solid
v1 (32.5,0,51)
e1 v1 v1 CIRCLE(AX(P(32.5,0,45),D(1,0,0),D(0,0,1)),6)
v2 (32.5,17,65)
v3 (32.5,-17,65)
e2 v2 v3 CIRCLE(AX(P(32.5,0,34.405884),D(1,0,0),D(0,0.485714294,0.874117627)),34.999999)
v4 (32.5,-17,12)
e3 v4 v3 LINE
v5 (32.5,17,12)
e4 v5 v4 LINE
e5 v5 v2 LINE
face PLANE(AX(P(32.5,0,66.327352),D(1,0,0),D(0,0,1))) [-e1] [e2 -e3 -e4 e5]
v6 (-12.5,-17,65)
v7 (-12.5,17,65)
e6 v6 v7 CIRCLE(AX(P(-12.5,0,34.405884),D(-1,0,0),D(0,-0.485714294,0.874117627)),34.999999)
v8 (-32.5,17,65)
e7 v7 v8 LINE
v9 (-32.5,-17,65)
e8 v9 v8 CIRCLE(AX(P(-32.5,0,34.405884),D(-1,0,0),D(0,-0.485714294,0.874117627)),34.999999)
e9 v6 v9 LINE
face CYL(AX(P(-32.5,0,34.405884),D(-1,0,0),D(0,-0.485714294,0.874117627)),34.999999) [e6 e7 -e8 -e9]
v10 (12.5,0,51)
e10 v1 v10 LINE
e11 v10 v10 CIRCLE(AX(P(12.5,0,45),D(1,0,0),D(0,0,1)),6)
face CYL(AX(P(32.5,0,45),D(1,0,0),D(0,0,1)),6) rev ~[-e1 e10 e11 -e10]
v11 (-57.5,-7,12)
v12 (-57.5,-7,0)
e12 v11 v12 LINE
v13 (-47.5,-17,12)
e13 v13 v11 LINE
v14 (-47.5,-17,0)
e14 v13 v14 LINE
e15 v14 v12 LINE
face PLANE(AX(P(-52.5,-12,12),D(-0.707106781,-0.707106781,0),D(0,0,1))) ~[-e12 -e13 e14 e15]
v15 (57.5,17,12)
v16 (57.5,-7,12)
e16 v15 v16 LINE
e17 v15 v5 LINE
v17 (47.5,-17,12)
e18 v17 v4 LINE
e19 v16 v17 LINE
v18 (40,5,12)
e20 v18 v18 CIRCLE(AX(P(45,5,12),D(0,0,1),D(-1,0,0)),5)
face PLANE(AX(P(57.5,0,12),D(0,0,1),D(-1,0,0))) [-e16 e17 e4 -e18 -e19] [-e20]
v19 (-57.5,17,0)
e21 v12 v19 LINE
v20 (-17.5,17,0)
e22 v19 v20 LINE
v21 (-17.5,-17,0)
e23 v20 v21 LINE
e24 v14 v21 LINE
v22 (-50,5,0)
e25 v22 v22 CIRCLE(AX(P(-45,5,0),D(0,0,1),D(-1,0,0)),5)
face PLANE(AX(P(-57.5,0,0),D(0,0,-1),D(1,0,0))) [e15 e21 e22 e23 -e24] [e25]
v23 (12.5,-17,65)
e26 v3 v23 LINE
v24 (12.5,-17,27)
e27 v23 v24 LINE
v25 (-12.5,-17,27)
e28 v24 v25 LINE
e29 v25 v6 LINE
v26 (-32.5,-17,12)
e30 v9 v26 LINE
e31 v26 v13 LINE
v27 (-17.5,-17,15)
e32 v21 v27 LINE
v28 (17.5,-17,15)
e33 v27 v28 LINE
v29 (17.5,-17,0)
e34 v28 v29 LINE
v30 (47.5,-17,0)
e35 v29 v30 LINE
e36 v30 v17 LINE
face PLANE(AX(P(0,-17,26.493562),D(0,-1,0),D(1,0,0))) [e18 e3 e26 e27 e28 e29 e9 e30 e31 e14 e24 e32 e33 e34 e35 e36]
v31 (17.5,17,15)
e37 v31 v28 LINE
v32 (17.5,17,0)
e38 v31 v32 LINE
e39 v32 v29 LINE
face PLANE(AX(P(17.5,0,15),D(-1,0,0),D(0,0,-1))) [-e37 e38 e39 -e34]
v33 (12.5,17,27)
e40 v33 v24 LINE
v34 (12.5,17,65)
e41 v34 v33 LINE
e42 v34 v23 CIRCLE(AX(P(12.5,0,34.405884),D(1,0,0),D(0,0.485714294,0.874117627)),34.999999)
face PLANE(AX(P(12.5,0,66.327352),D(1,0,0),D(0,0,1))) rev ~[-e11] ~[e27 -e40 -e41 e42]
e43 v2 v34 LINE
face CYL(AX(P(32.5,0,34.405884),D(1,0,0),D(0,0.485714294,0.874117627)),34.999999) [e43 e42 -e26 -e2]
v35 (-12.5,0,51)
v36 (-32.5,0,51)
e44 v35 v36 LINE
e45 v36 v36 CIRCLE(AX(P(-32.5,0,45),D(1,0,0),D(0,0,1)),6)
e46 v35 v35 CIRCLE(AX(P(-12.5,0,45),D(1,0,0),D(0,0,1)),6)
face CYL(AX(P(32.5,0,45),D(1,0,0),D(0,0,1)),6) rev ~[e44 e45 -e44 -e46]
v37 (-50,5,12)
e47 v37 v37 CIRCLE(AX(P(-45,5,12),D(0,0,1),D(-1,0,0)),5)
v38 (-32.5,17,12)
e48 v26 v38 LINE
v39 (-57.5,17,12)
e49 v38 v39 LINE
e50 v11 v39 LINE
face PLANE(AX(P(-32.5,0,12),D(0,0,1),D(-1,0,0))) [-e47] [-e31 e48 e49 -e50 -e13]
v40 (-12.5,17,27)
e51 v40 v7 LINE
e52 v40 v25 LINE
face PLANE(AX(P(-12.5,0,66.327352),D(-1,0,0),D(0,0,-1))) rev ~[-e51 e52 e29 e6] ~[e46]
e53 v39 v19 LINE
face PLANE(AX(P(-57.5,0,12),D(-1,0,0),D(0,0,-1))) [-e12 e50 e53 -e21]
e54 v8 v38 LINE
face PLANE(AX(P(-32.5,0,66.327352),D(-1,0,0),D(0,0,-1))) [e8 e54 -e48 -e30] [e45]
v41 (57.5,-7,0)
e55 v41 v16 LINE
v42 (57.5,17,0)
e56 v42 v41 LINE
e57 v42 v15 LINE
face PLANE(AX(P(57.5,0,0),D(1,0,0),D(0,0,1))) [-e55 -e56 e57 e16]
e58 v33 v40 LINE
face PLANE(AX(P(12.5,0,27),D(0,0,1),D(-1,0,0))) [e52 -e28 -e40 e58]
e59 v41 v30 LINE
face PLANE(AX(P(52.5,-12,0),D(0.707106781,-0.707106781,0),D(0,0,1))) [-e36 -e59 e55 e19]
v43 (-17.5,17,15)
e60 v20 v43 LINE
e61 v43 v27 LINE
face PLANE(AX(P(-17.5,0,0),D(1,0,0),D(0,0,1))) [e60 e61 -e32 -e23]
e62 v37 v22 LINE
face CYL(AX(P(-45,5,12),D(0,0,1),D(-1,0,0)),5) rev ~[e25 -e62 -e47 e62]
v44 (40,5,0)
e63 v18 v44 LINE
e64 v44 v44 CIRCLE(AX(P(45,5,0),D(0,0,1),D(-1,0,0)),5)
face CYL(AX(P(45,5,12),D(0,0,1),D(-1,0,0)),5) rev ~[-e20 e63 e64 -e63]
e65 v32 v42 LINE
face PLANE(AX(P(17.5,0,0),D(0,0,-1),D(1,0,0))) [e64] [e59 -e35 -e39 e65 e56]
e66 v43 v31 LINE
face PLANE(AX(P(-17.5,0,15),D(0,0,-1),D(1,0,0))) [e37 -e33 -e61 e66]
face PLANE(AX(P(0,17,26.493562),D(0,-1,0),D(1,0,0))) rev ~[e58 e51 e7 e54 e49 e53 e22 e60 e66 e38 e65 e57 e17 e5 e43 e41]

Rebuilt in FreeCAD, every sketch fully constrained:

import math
import FreeCAD as App
import Part
import Sketcher
Q = App.Units.Quantity


def edges_at(feature, points):
    """Names of the edges that pass closest to the given points."""
    edges = feature.Shape.Edges
    near = lambda p: min(range(len(edges)), key=lambda i: edges[i].distToShape(Part.Vertex(*p))[0])
    return sorted({f"Edge{near(p) + 1}" for p in points})

doc = App.newDocument("Part")
params = doc.addObject("Spreadsheet::Sheet", "Params")
for row, (alias, value) in enumerate([
    ("sketch1_width", "40 mm"),
    ("sketch1_width2", "35 mm"),
    ("sketch1_width3", "25 mm"),
    ("sketch1_height", "15 mm"),
    ("sketch1_height2", "12 mm"),
    ("pad1_length", "34 mm"),
    ("chamfer_size", "10 mm"),
    ("chamfer2_size", "10 mm"),
    ("sketch2_diameter", "10 mm"),
    ("sketch3_radius", "34.999999 mm"),
    ("sketch3_width", "34 mm"),
    ("pad2_length", "20 mm"),
    ("sketch4_radius", "34.999999 mm"),
    ("sketch4_width", "34 mm"),
    ("pad3_length", "20 mm"),
    ("sketch5_diameter", "12 mm"),
], start=1):
    params.set(f"A{row}", alias)
    params.set(f"B{row}", "=" + value)
    params.setAlias(f"B{row}", alias)

body = doc.addObject("PartDesign::Body", "Body")

# Sketch on XZ plane
sketch1 = body.newObject("Sketcher::SketchObject", "Sketch")
sketch1.AttachmentSupport = (doc.getObject("XZ_Plane"), [""])
sketch1.MapMode = "FlatFace"
sketch1.addGeometry([
    Part.LineSegment(App.Vector(-57.5, 0, 0), App.Vector(-17.5, 0, 0)),  # 0
    Part.LineSegment(App.Vector(-17.5, 0, 0), App.Vector(-17.5, 15, 0)),  # 1
    Part.LineSegment(App.Vector(-17.5, 15, 0), App.Vector(17.5, 15, 0)),  # 2
    Part.LineSegment(App.Vector(17.5, 15, 0), App.Vector(17.5, 0, 0)),  # 3
    Part.LineSegment(App.Vector(17.5, 0, 0), App.Vector(57.5, 0, 0)),  # 4
    Part.LineSegment(App.Vector(57.5, 0, 0), App.Vector(57.5, 12, 0)),  # 5
    Part.LineSegment(App.Vector(57.5, 12, 0), App.Vector(32.5, 12, 0)),  # 6
    Part.LineSegment(App.Vector(32.5, 12, 0), App.Vector(32.5, 65, 0)),  # 7
    Part.LineSegment(App.Vector(32.5, 65, 0), App.Vector(12.5, 65, 0)),  # 8
    Part.LineSegment(App.Vector(12.5, 65, 0), App.Vector(12.5, 27, 0)),  # 9
    Part.LineSegment(App.Vector(12.5, 27, 0), App.Vector(-12.5, 27, 0)),  # 10
    Part.LineSegment(App.Vector(-12.5, 27, 0), App.Vector(-12.5, 65, 0)),  # 11
    Part.LineSegment(App.Vector(-12.5, 65, 0), App.Vector(-32.5, 65, 0)),  # 12
    Part.LineSegment(App.Vector(-32.5, 65, 0), App.Vector(-32.5, 12, 0)),  # 13
    Part.LineSegment(App.Vector(-32.5, 12, 0), App.Vector(-57.5, 12, 0)),  # 14
    Part.LineSegment(App.Vector(-57.5, 12, 0), App.Vector(-57.5, 0, 0)),  # 15
], False)
sketch1.addConstraint([
    Sketcher.Constraint("Coincident", 0, 2, 1, 1),
    Sketcher.Constraint("Coincident", 1, 2, 2, 1),
    Sketcher.Constraint("Coincident", 2, 2, 3, 1),
    Sketcher.Constraint("Coincident", 3, 2, 4, 1),
    Sketcher.Constraint("Coincident", 4, 2, 5, 1),
    Sketcher.Constraint("Coincident", 5, 2, 6, 1),
    Sketcher.Constraint("Coincident", 6, 2, 7, 1),
    Sketcher.Constraint("Coincident", 7, 2, 8, 1),
    Sketcher.Constraint("Coincident", 8, 2, 9, 1),
    Sketcher.Constraint("Coincident", 9, 2, 10, 1),
    Sketcher.Constraint("Coincident", 10, 2, 11, 1),
    Sketcher.Constraint("Coincident", 11, 2, 12, 1),
    Sketcher.Constraint("Coincident", 12, 2, 13, 1),
    Sketcher.Constraint("Coincident", 13, 2, 14, 1),
    Sketcher.Constraint("Coincident", 14, 2, 15, 1),
    Sketcher.Constraint("Coincident", 15, 2, 0, 1),
    Sketcher.Constraint("Horizontal", 0),
    Sketcher.Constraint("Vertical", 1),
    Sketcher.Constraint("Horizontal", 2),
    Sketcher.Constraint("Vertical", 3),
    Sketcher.Constraint("Horizontal", 4),
    Sketcher.Constraint("Vertical", 5),
    Sketcher.Constraint("Horizontal", 6),
    Sketcher.Constraint("Vertical", 7),
    Sketcher.Constraint("Horizontal", 8),
    Sketcher.Constraint("Vertical", 9),
    Sketcher.Constraint("Horizontal", 10),
    Sketcher.Constraint("Vertical", 11),
    Sketcher.Constraint("Horizontal", 12),
    Sketcher.Constraint("Vertical", 13),
    Sketcher.Constraint("Horizontal", 14),
    Sketcher.Constraint("Vertical", 15),
    Sketcher.Constraint("Symmetric", 0, 2, 3, 2, -1, 1),
    Sketcher.Constraint("Symmetric", 8, 2, 11, 2, -2),
    Sketcher.Constraint("Symmetric", 6, 2, 13, 2, -2),
    Sketcher.Constraint("Symmetric", 4, 2, 15, 2, -2),
    Sketcher.Constraint("Equal", 6, 10),
    Sketcher.Constraint("DistanceX", 0, 1, 0, 2, Q("40 mm")),
    Sketcher.Constraint("DistanceX", 2, 1, 2, 2, Q("35 mm")),
    Sketcher.Constraint("DistanceX", 6, 2, 6, 1, Q("25 mm")),
    Sketcher.Constraint("DistanceY", 1, 1, 1, 2, Q("15 mm")),
    Sketcher.Constraint("DistanceY", 5, 1, 5, 2, Q("12 mm")),
    Sketcher.Constraint("DistanceY", 7, 1, 7, 2, Q("53 mm")),
    Sketcher.Constraint("DistanceY", 9, 2, 9, 1, Q("38 mm")),
])
sketch1.setExpression("Constraints[37]", "Params.sketch1_width")
sketch1.setExpression("Constraints[38]", "Params.sketch1_width2")
sketch1.setExpression("Constraints[39]", "Params.sketch1_width3")
sketch1.setExpression("Constraints[40]", "Params.sketch1_height")
sketch1.setExpression("Constraints[41]", "Params.sketch1_height2")
pad1 = body.newObject("PartDesign::Pad", "Pad")
pad1.Profile = sketch1
pad1.setExpression("Length", "Params.pad1_length")
pad1.Midplane = True
doc.recompute()

chamfer = body.newObject("PartDesign::Chamfer", "Chamfer")
chamfer.Base = (pad1, edges_at(pad1, [(57.5, -17, 6)]))
chamfer.setExpression("Size", "Params.chamfer_size")
doc.recompute()

chamfer2 = body.newObject("PartDesign::Chamfer", "Chamfer001")
chamfer2.Base = (chamfer, edges_at(chamfer, [(-57.5, -17, 6)]))
chamfer2.setExpression("Size", "Params.chamfer2_size")

# Sketch on XY plane
sketch2 = body.newObject("Sketcher::SketchObject", "Sketch001")
sketch2.AttachmentSupport = (doc.getObject("XY_Plane"), [""])
sketch2.MapMode = "FlatFace"
sketch2.AttachmentOffset = App.Placement(App.Vector(0, 0, 12), App.Rotation())
sketch2.addGeometry([
    Part.Circle(App.Vector(-45, 5, 0), App.Vector(0, 0, 1), 5),
    Part.Circle(App.Vector(45, 5, 0), App.Vector(0, 0, 1), 5),
], False)
sketch2.addConstraint([
    Sketcher.Constraint("Equal", 0, 1),
    Sketcher.Constraint("Symmetric", 0, 3, 1, 3, -2),
    Sketcher.Constraint("Diameter", 0, Q("10 mm")),
    Sketcher.Constraint("DistanceX", 0, 3, -1, 1, Q("45 mm")),
    Sketcher.Constraint("DistanceY", -1, 1, 0, 3, Q("5 mm")),
])
sketch2.setExpression("Constraints[2]", "Params.sketch2_diameter")
pocket1 = body.newObject("PartDesign::Pocket", "Pocket")
pocket1.Profile = sketch2
pocket1.Type = "ThroughAll"

# Sketch on YZ plane
sketch3 = body.newObject("Sketcher::SketchObject", "Sketch002")
sketch3.AttachmentSupport = (doc.getObject("YZ_Plane"), [""])
sketch3.MapMode = "FlatFace"
sketch3.AttachmentOffset = App.Placement(App.Vector(0, 0, 32.5), App.Rotation())
sketch3.addGeometry([
    Part.ArcOfCircle(Part.Circle(App.Vector(0, 34.405884, 0), App.Vector(0, 0, 1), 34.999999), math.radians(60.940718), math.radians(119.059282)),
    Part.LineSegment(App.Vector(-17, 65, 0), App.Vector(17, 65, 0)),
], False)
sketch3.addConstraint([
    Sketcher.Constraint("Coincident", 0, 1, 1, 2),
    Sketcher.Constraint("Coincident", 1, 1, 0, 2),
    Sketcher.Constraint("Horizontal", 1),
    Sketcher.Constraint("PointOnObject", 0, 3, -2),
    Sketcher.Constraint("Radius", 0, Q("34.999999 mm")),
    Sketcher.Constraint("DistanceX", 1, 1, 1, 2, Q("34 mm")),
    Sketcher.Constraint("DistanceY", -1, 1, 0, 1, Q("65 mm")),
])
sketch3.setExpression("Constraints[4]", "Params.sketch3_radius")
sketch3.setExpression("Constraints[5]", "Params.sketch3_width")
pad2 = body.newObject("PartDesign::Pad", "Pad001")
pad2.Profile = sketch3
pad2.setExpression("Length", "Params.pad2_length")
pad2.Reversed = True

# Sketch on YZ plane
sketch4 = body.newObject("Sketcher::SketchObject", "Sketch003")
sketch4.AttachmentSupport = (doc.getObject("YZ_Plane"), [""])
sketch4.MapMode = "FlatFace"
sketch4.AttachmentOffset = App.Placement(App.Vector(0, 0, -32.5), App.Rotation())
sketch4.addGeometry([
    Part.ArcOfCircle(Part.Circle(App.Vector(0, 34.405884, 0), App.Vector(0, 0, 1), 34.999999), math.radians(60.940718), math.radians(119.059282)),
    Part.LineSegment(App.Vector(17, 65, 0), App.Vector(-17, 65, 0)),
], False)
sketch4.addConstraint([
    Sketcher.Constraint("Coincident", 0, 1, 1, 1),
    Sketcher.Constraint("Coincident", 1, 2, 0, 2),
    Sketcher.Constraint("Horizontal", 1),
    Sketcher.Constraint("PointOnObject", 0, 3, -2),
    Sketcher.Constraint("Radius", 0, Q("34.999999 mm")),
    Sketcher.Constraint("DistanceX", 1, 2, 1, 1, Q("34 mm")),
    Sketcher.Constraint("DistanceY", -1, 1, 0, 1, Q("65 mm")),
])
sketch4.setExpression("Constraints[4]", "Params.sketch4_radius")
sketch4.setExpression("Constraints[5]", "Params.sketch4_width")
pad3 = body.newObject("PartDesign::Pad", "Pad002")
pad3.Profile = sketch4
pad3.setExpression("Length", "Params.pad3_length")

# Sketch on YZ plane
sketch5 = body.newObject("Sketcher::SketchObject", "Sketch004")
sketch5.AttachmentSupport = (doc.getObject("YZ_Plane"), [""])
sketch5.MapMode = "FlatFace"
sketch5.AttachmentOffset = App.Placement(App.Vector(0, 0, 32.5), App.Rotation())
sketch5.addGeometry(Part.Circle(App.Vector(0, 45, 0), App.Vector(0, 0, 1), 6), False)
sketch5.addConstraint([
    Sketcher.Constraint("PointOnObject", 0, 3, -2),
    Sketcher.Constraint("Diameter", 0, Q("12 mm")),
    Sketcher.Constraint("DistanceY", -1, 1, 0, 3, Q("45 mm")),
])
sketch5.setExpression("Constraints[1]", "Params.sketch5_diameter")
pocket2 = body.newObject("PartDesign::Pocket", "Pocket001")
pocket2.Profile = sketch5
pocket2.Type = "ThroughAll"

doc.recompute()
